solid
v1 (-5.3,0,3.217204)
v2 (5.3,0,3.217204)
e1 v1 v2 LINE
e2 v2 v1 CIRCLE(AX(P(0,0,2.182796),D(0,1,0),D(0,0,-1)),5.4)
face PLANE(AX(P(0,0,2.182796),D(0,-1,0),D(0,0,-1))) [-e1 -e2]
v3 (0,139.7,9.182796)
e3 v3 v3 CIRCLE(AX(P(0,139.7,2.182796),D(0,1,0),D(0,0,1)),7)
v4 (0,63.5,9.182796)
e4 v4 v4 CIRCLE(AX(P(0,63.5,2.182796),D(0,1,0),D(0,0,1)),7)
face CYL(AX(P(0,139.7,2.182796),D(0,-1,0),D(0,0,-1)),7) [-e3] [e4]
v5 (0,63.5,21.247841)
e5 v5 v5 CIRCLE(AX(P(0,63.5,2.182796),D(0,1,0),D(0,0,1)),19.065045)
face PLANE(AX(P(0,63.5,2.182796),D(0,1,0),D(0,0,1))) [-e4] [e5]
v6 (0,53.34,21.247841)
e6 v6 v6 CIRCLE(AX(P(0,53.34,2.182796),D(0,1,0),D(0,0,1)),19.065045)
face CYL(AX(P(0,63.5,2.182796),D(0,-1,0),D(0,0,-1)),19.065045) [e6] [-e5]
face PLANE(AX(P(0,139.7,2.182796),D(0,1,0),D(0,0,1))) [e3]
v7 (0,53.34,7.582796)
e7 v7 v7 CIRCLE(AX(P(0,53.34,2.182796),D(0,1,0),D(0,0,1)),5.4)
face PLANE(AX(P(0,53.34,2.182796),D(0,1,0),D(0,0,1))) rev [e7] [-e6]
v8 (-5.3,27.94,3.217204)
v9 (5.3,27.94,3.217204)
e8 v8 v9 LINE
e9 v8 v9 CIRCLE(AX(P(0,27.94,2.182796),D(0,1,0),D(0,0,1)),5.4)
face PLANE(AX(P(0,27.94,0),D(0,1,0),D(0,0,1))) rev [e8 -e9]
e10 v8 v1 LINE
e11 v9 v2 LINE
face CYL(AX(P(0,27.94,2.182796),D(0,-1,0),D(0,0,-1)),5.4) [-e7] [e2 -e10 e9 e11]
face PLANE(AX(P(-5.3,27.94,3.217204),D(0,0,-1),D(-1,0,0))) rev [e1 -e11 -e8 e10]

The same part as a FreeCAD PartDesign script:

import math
import FreeCAD as App
import Part
import Sketcher
Q = App.Units.Quantity

doc = App.newDocument("Part")
body = doc.addObject("PartDesign::Body", "Body")

# Sketch on XZ plane
sketch1 = body.newObject("Sketcher::SketchObject", "Sketch")
sketch1.AttachmentSupport = (doc.getObject("XZ_Plane"), [""])
sketch1.MapMode = "FlatFace"
sketch1.addGeometry([
    Part.LineSegment(App.Vector(-5, 3, 0), App.Vector(5, 3, 0)),
    Part.ArcOfCircle(Part.Circle(App.Vector(0, 2, 0), App.Vector(0, 0, 1), 5), math.radians(169), math.radians(371)),
], False)
sketch1.addConstraint([
    Sketcher.Constraint("Coincident", 0, 1, 1, 1),
    Sketcher.Constraint("Coincident", 1, 2, 0, 2),
    Sketcher.Constraint("Horizontal", 0),
    Sketcher.Constraint("PointOnObject", 1, 3, -2),
    Sketcher.Constraint("Radius", 1, 5.4),
    Sketcher.Constraint("DistanceX", 0, 1, 0, 2, 10.6),
    Sketcher.Constraint("DistanceY", -1, 1, 1, 3, 2.182796),
])
pad1 = body.newObject("PartDesign::Pad", "Pad")
pad1.Profile = sketch1
pad1.Length = Q("1.1 in")
pad1.Reversed = True

# Sketch on XZ plane
sketch2 = body.newObject("Sketcher::SketchObject", "Sketch001")
sketch2.AttachmentSupport = (doc.getObject("XZ_Plane"), [""])
sketch2.MapMode = "FlatFace"
sketch2.AttachmentOffset = App.Placement(App.Vector(0, 0, -1.1 * 25.4), App.Rotation())
sketch2.addGeometry([
    Part.ArcOfCircle(Part.Circle(App.Vector(0, 2, 0), App.Vector(0, 0, 1), 5), math.radians(11), math.radians(169)),
    Part.ArcOfCircle(Part.Circle(App.Vector(0, 2, 0), App.Vector(0, 0, 1), 5), math.radians(169), math.radians(371)),
], False)
sketch2.addConstraint([
    Sketcher.Constraint("Tangent", 0, 1, 1, 2),
    Sketcher.Constraint("Coincident", 1, 1, 0, 2),
    Sketcher.Constraint("Symmetric", 0, 1, 1, 1, -2),
    Sketcher.Constraint("Radius", 0, 5.4),
    Sketcher.Constraint("DistanceX", -1, 1, 0, 1, 5.3),
    Sketcher.Constraint("DistanceY", -1, 1, 0, 3, 2.182796),
])
pad2 = body.newObject("PartDesign::Pad", "Pad001")
pad2.Profile = sketch2
pad2.Length = Q("1 in")
pad2.Reversed = True

# Sketch on XZ plane
sketch3 = body.newObject("Sketcher::SketchObject", "Sketch002")
sketch3.AttachmentSupport = (doc.getObject("XZ_Plane"), [""])
sketch3.MapMode = "FlatFace"
sketch3.AttachmentOffset = App.Placement(App.Vector(0, 0, -2.1 * 25.4), App.Rotation())
sketch3.addGeometry(Part.Circle(App.Vector(0, 2, 0), App.Vector(0, 0, 1), 19), False)
sketch3.addConstraint([
    Sketcher.Constraint("PointOnObject", 0, 3, -2),
    Sketcher.Constraint("Diameter", 0, 38.13009),
    Sketcher.Constraint("DistanceY", -1, 1, 0, 3, 2.182796),
])
pad3 = body.newObject("PartDesign::Pad", "Pad002")
pad3.Profile = sketch3
pad3.Length = Q("0.4 in")
pad3.Reversed = True

# Sketch on XZ plane
sketch4 = body.newObject("Sketcher::SketchObject", "Sketch003")
sketch4.AttachmentSupport = (doc.getObject("XZ_Plane"), [""])
sketch4.MapMode = "FlatFace"
sketch4.AttachmentOffset = App.Placement(App.Vector(0, 0, -2.5 * 25.4), App.Rotation())
sketch4.addGeometry(Part.Circle(App.Vector(0, 2, 0), App.Vector(0, 0, 1), 7), False)
sketch4.addConstraint([
    Sketcher.Constraint("PointOnObject", 0, 3, -2),
    Sketcher.Constraint("Diameter", 0, 14.0),
    Sketcher.Constraint("DistanceY", -1, 1, 0, 3, 2.182796),
])
pad4 = body.newObject("PartDesign::Pad", "Pad003")
pad4.Profile = sketch4
pad4.Length = Q("3 in")
pad4.Reversed = True

doc.recompute()
